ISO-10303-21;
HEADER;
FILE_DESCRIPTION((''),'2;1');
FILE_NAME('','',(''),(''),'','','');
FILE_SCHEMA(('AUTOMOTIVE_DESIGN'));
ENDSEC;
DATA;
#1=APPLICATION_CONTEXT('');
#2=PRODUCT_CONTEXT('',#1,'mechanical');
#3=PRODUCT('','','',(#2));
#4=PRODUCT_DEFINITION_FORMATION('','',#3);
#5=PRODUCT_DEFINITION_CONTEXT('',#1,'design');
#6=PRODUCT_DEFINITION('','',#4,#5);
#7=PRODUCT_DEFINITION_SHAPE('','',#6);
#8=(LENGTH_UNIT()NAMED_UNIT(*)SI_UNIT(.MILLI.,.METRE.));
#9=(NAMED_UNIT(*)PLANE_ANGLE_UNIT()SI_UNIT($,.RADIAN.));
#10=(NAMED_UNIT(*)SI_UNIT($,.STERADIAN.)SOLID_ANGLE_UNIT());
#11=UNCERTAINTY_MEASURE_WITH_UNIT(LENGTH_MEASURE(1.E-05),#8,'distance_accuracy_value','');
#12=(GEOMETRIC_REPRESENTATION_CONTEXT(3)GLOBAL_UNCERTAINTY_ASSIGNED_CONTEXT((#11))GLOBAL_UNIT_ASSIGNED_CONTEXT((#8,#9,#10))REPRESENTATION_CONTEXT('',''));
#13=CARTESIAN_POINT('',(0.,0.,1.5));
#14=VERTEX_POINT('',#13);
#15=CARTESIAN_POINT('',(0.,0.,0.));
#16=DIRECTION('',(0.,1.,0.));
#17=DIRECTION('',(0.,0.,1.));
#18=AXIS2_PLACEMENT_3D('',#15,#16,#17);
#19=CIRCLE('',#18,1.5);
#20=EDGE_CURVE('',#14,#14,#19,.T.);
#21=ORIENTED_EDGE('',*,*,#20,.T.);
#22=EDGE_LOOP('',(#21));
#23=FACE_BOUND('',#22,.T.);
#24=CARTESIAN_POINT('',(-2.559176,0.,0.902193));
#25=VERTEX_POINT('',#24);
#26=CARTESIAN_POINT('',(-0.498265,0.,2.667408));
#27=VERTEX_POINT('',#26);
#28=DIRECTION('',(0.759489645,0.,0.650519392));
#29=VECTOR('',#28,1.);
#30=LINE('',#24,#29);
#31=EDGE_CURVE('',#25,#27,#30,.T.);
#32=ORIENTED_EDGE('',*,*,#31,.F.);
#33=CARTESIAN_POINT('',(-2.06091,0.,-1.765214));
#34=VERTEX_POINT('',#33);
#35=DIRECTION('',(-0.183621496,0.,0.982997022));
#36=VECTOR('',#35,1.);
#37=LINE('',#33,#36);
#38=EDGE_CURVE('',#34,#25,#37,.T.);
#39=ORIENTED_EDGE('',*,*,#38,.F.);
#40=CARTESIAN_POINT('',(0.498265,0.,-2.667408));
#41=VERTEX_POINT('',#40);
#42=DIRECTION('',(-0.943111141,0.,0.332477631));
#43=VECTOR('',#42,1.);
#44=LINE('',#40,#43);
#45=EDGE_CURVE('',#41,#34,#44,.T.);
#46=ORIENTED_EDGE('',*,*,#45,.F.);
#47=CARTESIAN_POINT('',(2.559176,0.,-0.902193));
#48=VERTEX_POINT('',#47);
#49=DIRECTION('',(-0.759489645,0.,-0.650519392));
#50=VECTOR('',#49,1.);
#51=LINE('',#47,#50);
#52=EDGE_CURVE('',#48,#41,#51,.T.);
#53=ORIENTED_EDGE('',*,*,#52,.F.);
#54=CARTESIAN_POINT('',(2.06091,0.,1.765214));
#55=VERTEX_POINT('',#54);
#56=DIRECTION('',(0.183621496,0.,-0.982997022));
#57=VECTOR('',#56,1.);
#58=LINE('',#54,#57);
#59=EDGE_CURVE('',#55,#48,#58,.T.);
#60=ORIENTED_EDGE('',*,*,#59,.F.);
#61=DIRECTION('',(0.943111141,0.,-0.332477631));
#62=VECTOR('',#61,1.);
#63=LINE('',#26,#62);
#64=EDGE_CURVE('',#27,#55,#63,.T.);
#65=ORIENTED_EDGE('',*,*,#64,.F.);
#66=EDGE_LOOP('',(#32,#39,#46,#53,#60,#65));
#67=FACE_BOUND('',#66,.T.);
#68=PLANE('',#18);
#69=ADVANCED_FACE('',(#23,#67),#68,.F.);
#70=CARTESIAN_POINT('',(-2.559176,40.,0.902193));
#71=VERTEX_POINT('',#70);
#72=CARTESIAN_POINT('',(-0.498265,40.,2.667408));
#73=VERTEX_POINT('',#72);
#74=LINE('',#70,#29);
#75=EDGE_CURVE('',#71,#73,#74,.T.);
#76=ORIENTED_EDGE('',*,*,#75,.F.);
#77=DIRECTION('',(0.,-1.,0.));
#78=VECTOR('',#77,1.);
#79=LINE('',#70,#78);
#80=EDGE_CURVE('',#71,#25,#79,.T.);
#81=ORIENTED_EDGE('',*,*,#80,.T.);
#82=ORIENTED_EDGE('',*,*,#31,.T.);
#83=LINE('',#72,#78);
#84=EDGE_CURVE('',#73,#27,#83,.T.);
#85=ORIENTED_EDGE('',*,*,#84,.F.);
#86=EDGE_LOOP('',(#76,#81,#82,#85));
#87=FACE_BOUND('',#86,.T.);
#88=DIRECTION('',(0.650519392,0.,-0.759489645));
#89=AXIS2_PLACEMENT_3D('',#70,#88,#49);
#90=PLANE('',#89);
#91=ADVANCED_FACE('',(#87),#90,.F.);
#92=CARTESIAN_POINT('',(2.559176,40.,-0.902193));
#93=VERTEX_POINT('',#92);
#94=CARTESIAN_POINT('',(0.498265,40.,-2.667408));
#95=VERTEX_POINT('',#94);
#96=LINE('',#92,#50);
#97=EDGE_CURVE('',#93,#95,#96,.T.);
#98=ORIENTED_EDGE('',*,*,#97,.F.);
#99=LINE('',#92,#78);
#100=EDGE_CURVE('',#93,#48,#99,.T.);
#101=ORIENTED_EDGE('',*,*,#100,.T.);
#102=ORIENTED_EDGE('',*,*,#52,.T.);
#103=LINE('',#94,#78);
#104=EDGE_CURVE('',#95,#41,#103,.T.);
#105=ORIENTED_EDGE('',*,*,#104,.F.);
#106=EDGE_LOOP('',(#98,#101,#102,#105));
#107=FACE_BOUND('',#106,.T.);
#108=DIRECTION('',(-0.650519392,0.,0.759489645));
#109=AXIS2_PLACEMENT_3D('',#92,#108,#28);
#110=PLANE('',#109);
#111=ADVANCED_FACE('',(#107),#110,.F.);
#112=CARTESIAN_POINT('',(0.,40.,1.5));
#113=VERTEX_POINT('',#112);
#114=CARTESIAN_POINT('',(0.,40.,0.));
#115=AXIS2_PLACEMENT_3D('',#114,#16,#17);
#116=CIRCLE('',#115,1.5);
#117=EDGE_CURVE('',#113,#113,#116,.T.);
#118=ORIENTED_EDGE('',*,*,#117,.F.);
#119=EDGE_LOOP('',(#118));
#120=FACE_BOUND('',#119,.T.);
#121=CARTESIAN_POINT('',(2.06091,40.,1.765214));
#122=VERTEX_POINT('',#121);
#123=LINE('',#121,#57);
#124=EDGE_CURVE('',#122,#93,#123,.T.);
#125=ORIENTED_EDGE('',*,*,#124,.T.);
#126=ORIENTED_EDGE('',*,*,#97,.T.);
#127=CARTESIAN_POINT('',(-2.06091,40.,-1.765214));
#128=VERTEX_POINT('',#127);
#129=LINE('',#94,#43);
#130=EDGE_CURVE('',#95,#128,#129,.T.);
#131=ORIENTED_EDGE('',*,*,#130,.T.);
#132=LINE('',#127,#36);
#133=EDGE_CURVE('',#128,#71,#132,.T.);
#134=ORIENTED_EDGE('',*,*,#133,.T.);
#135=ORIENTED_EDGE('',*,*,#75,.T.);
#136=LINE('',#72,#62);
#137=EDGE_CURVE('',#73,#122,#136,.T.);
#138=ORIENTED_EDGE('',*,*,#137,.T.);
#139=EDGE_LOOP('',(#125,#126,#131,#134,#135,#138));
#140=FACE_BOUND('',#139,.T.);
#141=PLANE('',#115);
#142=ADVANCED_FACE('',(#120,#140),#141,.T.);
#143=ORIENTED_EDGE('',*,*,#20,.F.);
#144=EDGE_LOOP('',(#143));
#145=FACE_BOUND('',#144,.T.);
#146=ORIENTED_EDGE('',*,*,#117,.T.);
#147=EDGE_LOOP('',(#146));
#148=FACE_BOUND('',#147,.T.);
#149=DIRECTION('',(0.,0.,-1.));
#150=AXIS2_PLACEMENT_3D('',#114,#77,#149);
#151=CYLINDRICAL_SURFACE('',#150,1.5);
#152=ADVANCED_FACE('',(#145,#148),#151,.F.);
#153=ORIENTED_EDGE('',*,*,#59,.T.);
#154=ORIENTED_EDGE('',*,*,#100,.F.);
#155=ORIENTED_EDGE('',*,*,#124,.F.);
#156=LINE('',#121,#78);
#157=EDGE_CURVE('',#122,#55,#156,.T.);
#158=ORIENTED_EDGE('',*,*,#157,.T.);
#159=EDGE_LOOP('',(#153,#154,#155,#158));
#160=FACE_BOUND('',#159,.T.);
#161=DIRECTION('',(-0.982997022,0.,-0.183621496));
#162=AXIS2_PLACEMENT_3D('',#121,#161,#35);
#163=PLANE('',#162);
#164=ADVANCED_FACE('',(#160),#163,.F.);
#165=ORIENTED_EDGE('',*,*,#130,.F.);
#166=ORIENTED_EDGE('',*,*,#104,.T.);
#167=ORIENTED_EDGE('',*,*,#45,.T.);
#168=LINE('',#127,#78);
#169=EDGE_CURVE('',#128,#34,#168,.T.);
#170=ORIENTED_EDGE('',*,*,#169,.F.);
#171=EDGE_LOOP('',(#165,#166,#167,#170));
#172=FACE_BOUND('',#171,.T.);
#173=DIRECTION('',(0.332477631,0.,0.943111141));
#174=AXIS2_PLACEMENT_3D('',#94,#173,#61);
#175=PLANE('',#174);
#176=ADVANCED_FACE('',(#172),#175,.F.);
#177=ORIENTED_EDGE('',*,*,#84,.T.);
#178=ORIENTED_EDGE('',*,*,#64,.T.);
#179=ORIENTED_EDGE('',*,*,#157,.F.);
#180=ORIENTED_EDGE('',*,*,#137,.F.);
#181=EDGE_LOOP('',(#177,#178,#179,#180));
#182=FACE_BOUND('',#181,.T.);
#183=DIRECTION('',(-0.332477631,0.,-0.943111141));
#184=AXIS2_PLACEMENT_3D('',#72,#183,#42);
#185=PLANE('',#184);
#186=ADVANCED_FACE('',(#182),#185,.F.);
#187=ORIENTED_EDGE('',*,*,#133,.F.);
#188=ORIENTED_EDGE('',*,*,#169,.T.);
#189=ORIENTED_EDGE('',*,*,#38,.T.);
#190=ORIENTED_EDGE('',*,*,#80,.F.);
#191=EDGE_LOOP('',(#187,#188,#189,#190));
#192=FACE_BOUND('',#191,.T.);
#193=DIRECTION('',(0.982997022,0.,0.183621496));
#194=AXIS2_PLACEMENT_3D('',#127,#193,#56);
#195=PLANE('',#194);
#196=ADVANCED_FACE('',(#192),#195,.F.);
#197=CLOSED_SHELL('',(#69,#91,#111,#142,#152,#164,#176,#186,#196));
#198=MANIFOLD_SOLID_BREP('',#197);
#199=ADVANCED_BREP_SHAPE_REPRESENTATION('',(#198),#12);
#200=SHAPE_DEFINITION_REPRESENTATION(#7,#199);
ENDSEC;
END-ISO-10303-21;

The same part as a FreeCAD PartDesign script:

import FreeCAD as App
import Part
import Sketcher
Q = App.Units.Quantity


def add_polygon(sketch, points):
    """Adds a closed chain of lines whose ends are joined by coincident constraints."""
    first, n = sketch.GeometryCount, len(points)
    for a, b in zip(points, points[1:] + points[:1]):
        sketch.addGeometry(Part.LineSegment(App.Vector(*a, 0), App.Vector(*b, 0)), False)
    for i in range(n):
        sketch.addConstraint(Sketcher.Constraint("Coincident", first + i, 2, first + (i + 1) % n, 1))

doc = App.newDocument("Part")
params = doc.addObject("Spreadsheet::Sheet", "Params")
for row, (alias, value) in enumerate([
    ("sketch1_diameter", "3 mm"),
    ("pad1_length", "40 mm"),
], start=1):
    params.set(f"A{row}", alias)
    params.set(f"B{row}", "=" + value)
    params.setAlias(f"B{row}", alias)

body = doc.addObject("PartDesign::Body", "Body")

# Sketch on XZ plane
sketch1 = body.newObject("Sketcher::SketchObject", "Sketch")
sketch1.AttachmentSupport = (doc.getObject("XZ_Plane"), [""])
sketch1.MapMode = "FlatFace"
add_polygon(sketch1, [(2.06091, 1.765214), (2.559176, -0.902193), (0.498265, -2.667408), (-2.06091, -1.765214), (-2.559176, 0.902193), (-0.498265, 2.667408)])  # lines 0-5
sketch1.addGeometry(Part.Circle(App.Vector(0, 0, 0), App.Vector(0, 0, 1), 1.5), False)  # 6
sketch1.addConstraint(Sketcher.Constraint("Coincident", 6, 3, -1, 1))
sketch1.addConstraint(Sketcher.Constraint("Symmetric", 0, 2, 3, 2, -1, 1))
sketch1.addConstraint(Sketcher.Constraint("Symmetric", 1, 2, 4, 2, -1, 1))
sketch1.addConstraint(Sketcher.Constraint("Symmetric", 2, 2, 5, 2, -1, 1))
sketch1.addConstraint(Sketcher.Constraint("Equal", 0, 1))
sketch1.addConstraint(Sketcher.Constraint("Equal", 1, 2))
sketch1.addConstraint(Sketcher.Constraint("Diameter", 6, Q("3 mm")))
sketch1.addConstraint(Sketcher.Constraint("DistanceY", 1, 2, 3, 2, Q("3.569601 mm")))
sketch1.addConstraint(Sketcher.Constraint("DistanceX", 2, 2, -1, 1, Q("2.06091 mm")))
sketch1.addConstraint(Sketcher.Constraint("DistanceX", 1, 2, 0, 2, Q("2.06091 mm")))
sketch1.addConstraint(Sketcher.Constraint("DistanceY", 2, 2, 0, 2, Q("0.863021 mm")))
sketch1.setExpression("Constraints[12]", "Params.sketch1_diameter")
pad1 = body.newObject("PartDesign::Pad", "Pad")
pad1.Profile = sketch1
pad1.setExpression("Length", "Params.pad1_length")
pad1.Reversed = True

doc.recompute()
